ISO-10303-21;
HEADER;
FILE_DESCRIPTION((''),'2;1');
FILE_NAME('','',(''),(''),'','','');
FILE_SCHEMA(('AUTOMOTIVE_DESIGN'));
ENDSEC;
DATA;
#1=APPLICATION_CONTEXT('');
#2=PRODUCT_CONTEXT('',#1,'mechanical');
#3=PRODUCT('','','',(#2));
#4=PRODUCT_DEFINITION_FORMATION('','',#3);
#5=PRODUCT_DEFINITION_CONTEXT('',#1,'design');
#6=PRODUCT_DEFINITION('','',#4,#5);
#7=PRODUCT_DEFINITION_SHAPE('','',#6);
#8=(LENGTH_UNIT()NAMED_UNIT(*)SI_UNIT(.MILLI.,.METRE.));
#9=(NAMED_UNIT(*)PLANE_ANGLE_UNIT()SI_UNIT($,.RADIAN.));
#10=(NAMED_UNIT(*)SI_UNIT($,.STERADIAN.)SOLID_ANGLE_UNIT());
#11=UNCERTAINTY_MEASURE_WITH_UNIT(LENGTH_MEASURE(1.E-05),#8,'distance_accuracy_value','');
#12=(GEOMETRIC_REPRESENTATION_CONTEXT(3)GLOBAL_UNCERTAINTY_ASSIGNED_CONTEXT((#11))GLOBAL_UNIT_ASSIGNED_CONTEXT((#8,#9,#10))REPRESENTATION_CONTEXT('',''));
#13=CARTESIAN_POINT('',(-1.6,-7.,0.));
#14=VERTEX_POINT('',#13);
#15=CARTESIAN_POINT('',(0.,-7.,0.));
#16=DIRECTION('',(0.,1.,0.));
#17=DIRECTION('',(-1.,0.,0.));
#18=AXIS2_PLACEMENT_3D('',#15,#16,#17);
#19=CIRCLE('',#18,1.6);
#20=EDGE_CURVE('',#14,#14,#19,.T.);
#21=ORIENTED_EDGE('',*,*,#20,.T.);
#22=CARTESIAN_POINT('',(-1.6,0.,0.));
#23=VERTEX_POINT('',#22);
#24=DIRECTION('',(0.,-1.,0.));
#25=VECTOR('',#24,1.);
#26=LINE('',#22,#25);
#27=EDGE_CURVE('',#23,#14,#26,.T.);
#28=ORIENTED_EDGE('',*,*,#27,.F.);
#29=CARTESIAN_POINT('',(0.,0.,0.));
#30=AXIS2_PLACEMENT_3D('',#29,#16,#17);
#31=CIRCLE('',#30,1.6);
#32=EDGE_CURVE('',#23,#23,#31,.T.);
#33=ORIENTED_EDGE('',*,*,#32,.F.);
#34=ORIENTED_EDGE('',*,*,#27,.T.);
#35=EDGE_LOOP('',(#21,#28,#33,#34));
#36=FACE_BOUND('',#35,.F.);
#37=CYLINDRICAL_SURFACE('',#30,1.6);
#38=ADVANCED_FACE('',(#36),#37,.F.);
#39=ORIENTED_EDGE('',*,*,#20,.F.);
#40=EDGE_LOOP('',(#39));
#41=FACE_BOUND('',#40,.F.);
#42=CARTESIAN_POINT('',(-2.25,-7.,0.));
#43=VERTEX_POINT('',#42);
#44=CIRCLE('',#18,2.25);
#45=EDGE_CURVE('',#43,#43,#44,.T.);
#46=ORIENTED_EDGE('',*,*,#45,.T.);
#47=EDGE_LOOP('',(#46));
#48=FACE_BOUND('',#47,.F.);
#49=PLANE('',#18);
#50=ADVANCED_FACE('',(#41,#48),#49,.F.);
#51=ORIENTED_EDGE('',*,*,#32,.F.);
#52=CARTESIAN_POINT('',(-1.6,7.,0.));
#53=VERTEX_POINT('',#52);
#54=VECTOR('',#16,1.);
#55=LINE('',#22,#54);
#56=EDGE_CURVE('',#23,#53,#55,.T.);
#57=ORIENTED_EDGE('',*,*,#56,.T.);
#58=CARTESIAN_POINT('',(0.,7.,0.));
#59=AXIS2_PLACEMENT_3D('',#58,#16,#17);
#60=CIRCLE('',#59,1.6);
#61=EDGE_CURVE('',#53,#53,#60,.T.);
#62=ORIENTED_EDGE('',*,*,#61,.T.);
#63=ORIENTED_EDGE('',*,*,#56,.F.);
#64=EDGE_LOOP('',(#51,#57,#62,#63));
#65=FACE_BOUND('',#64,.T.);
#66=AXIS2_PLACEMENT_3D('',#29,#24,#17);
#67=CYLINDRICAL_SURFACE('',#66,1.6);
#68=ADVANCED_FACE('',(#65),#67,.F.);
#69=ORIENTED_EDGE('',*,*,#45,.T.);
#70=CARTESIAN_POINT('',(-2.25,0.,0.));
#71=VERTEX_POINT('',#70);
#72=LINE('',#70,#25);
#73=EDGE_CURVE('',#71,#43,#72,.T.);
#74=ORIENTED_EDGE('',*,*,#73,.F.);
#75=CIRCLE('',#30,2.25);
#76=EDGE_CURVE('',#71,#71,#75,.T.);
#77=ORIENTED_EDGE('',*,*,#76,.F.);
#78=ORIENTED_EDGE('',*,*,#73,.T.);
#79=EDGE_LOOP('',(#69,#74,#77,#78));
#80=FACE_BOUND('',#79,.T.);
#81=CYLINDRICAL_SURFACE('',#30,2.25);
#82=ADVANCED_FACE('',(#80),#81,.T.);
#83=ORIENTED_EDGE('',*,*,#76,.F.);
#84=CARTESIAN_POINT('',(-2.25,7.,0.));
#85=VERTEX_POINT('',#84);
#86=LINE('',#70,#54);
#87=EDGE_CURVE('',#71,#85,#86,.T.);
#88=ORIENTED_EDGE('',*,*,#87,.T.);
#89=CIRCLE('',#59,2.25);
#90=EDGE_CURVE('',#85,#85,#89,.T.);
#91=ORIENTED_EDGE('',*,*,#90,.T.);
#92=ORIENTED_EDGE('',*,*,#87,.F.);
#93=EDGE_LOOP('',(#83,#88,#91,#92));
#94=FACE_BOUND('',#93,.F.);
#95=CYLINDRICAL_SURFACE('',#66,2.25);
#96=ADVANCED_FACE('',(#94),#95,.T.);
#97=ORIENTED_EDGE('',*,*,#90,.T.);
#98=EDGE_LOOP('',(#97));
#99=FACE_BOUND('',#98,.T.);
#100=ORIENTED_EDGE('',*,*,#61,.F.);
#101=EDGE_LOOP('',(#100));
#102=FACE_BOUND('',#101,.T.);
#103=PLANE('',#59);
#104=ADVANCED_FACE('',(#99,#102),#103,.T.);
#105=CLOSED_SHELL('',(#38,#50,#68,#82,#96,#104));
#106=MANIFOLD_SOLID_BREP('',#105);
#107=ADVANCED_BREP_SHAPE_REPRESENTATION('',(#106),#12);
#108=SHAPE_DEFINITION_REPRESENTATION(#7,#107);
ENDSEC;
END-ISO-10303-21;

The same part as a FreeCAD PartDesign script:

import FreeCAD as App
import Part
import Sketcher

doc = App.newDocument("Part")
body = doc.addObject("PartDesign::Body", "Body")

sketch1 = body.newObject("Sketcher::SketchObject", "Sketch")
sketch1.AttachmentSupport = (doc.getObject("XZ_Plane"), [""])
sketch1.MapMode = "FlatFace"
sketch1.addGeometry([
    Part.Circle(App.Vector(0, 0, 0), App.Vector(0, 0, 1), 2.2),
    Part.Circle(App.Vector(0, 0, 0), App.Vector(0, 0, 1), 1.6),
], False)
sketch1.addConstraint([
    Sketcher.Constraint("Coincident", 0, 3, -1, 1),
    Sketcher.Constraint("Coincident", 1, 3, -1, 1),
    Sketcher.Constraint("Diameter", 0, 4.5),
    Sketcher.Constraint("Diameter", 1, 3.2),
])
pad1 = body.newObject("PartDesign::Pad", "Pad")
pad1.Profile = sketch1
pad1.Length = 14
pad1.Midplane = True

doc.recompute()
